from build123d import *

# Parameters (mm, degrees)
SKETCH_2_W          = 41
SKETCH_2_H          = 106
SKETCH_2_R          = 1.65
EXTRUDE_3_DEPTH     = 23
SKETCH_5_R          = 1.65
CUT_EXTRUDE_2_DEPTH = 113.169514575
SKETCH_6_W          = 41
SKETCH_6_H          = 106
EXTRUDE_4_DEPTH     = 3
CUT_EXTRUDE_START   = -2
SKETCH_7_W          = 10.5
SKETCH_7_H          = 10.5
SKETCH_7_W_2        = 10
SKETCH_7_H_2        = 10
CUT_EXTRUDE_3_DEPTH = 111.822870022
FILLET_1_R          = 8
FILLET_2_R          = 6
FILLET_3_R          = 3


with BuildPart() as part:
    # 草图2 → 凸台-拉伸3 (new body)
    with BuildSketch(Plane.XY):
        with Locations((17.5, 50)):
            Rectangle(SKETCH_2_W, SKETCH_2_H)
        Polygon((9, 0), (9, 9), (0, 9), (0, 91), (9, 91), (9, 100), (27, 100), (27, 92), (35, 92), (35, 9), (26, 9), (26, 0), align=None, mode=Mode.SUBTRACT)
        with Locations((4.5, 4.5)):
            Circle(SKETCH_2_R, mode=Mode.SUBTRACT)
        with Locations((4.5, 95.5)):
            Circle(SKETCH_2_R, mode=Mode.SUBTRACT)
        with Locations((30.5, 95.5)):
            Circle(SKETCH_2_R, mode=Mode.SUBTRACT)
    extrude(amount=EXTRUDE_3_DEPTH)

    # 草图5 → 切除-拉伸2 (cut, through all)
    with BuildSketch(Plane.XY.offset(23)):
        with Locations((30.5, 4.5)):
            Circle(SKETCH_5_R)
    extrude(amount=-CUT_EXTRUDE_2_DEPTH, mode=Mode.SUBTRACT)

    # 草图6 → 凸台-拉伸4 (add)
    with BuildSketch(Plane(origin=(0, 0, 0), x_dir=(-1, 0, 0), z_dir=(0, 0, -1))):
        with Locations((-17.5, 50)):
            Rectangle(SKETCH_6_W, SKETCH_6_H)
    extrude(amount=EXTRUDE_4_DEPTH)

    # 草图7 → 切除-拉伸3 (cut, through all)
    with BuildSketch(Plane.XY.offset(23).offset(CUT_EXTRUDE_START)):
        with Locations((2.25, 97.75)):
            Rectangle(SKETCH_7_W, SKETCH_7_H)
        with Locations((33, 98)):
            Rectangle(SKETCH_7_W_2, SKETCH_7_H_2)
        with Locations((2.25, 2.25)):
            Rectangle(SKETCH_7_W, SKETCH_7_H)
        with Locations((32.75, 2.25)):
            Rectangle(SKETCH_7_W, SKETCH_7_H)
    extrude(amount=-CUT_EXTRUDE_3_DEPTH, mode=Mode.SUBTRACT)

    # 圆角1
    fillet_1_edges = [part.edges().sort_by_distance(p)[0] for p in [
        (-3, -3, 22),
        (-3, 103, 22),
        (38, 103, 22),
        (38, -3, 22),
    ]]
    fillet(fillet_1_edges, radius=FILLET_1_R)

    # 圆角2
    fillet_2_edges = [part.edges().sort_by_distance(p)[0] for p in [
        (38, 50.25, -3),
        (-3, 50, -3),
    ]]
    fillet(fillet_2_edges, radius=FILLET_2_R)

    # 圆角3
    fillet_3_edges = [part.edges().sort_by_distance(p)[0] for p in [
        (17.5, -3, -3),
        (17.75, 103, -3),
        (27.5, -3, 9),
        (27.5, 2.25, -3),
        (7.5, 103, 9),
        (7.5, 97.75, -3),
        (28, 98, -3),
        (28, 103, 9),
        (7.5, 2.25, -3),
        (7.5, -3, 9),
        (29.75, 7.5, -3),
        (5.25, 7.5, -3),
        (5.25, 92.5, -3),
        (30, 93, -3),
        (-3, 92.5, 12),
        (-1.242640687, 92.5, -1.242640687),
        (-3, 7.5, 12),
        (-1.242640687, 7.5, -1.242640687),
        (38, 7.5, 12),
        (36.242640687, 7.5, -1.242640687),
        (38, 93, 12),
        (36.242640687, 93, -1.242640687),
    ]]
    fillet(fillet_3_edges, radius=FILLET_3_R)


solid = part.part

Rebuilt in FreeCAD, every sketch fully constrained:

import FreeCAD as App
import Part
import Sketcher


def edges_at(feature, points):
    """Names of the edges that pass closest to the given points."""
    edges = feature.Shape.Edges
    near = lambda p: min(range(len(edges)), key=lambda i: edges[i].distToShape(Part.Vertex(*p))[0])
    return sorted({f"Edge{near(p) + 1}" for p in points})

doc = App.newDocument("Part")
body = doc.addObject("PartDesign::Body", "Body")

# Sketch on XY plane
sketch1 = body.newObject("Sketcher::SketchObject", "Sketch")
sketch1.AttachmentSupport = (doc.getObject("XY_Plane"), [""])
sketch1.MapMode = "FlatFace"
sketch1.addGeometry(Part.LineSegment(App.Vector(-3, 103, 0), App.Vector(-3, -3, 0)), False)
sketch1.addGeometry(Part.LineSegment(App.Vector(-3, -3, 0), App.Vector(38, -3, 0)), False)
sketch1.addGeometry(Part.LineSegment(App.Vector(38, -3, 0), App.Vector(38, 103, 0)), False)
sketch1.addGeometry(Part.LineSegment(App.Vector(38, 103, 0), App.Vector(-3, 103, 0)), False)
sketch1.addGeometry(Part.Circle(App.Vector(4.5, 4.5, 0), App.Vector(0, 0, 1), 1.6), False)
sketch1.addGeometry(Part.Circle(App.Vector(4.5, 95.5, 0), App.Vector(0, 0, 1), 1.6), False)
sketch1.addGeometry(Part.LineSegment(App.Vector(26, 0, 0), App.Vector(9, 0, 0)), False)
sketch1.addGeometry(Part.LineSegment(App.Vector(9, 0, 0), App.Vector(9, 9, 0)), False)
sketch1.addGeometry(Part.LineSegment(App.Vector(9, 9, 0), App.Vector(0, 9, 0)), False)
sketch1.addGeometry(Part.LineSegment(App.Vector(0, 9, 0), App.Vector(0, 91, 0)), False)
sketch1.addGeometry(Part.LineSegment(App.Vector(0, 91, 0), App.Vector(9, 91, 0)), False)
sketch1.addGeometry(Part.LineSegment(App.Vector(9, 91, 0), App.Vector(9, 100, 0)), False)
sketch1.addGeometry(Part.LineSegment(App.Vector(9, 100, 0), App.Vector(27, 100, 0)), False)
sketch1.addGeometry(Part.LineSegment(App.Vector(27, 100, 0), App.Vector(27, 92, 0)), False)
sketch1.addGeometry(Part.LineSegment(App.Vector(27, 92, 0), App.Vector(35, 92, 0)), False)
sketch1.addGeometry(Part.LineSegment(App.Vector(35, 92, 0), App.Vector(35, 9, 0)), False)
sketch1.addGeometry(Part.LineSegment(App.Vector(35, 9, 0), App.Vector(26, 9, 0)), False)
sketch1.addGeometry(Part.LineSegment(App.Vector(26, 9, 0), App.Vector(26, 0, 0)), False)
sketch1.addGeometry(Part.Circle(App.Vector(30.5, 95.5, 0), App.Vector(0, 0, 1), 1.6), False)
sketch1.addConstraint(Sketcher.Constraint("Coincident", 0, 2, 1, 1))
sketch1.addConstraint(Sketcher.Constraint("Coincident", 1, 2, 2, 1))
sketch1.addConstraint(Sketcher.Constraint("Coincident", 2, 2, 3, 1))
sketch1.addConstraint(Sketcher.Constraint("Coincident", 3, 2, 0, 1))
sketch1.addConstraint(Sketcher.Constraint("Coincident", 6, 2, 7, 1))
sketch1.addConstraint(Sketcher.Constraint("Coincident", 7, 2, 8, 1))
sketch1.addConstraint(Sketcher.Constraint("Coincident", 8, 2, 9, 1))
sketch1.addConstraint(Sketcher.Constraint("Coincident", 9, 2, 10, 1))
sketch1.addConstraint(Sketcher.Constraint("Coincident", 10, 2, 11, 1))
sketch1.addConstraint(Sketcher.Constraint("Coincident", 11, 2, 12, 1))
sketch1.addConstraint(Sketcher.Constraint("Coincident", 12, 2, 13, 1))
sketch1.addConstraint(Sketcher.Constraint("Coincident", 13, 2, 14, 1))
sketch1.addConstraint(Sketcher.Constraint("Coincident", 14, 2, 15, 1))
sketch1.addConstraint(Sketcher.Constraint("Coincident", 15, 2, 16, 1))
sketch1.addConstraint(Sketcher.Constraint("Coincident", 16, 2, 17, 1))
sketch1.addConstraint(Sketcher.Constraint("Coincident", 17, 2, 6, 1))
sketch1.addConstraint(Sketcher.Constraint("Vertical", 0))
sketch1.addConstraint(Sketcher.Constraint("Horizontal", 1))
sketch1.addConstraint(Sketcher.Constraint("Vertical", 2))
sketch1.addConstraint(Sketcher.Constraint("Horizontal", 3))
sketch1.addConstraint(Sketcher.Constraint("Horizontal", 6))
sketch1.addConstraint(Sketcher.Constraint("Vertical", 7))
sketch1.addConstraint(Sketcher.Constraint("Horizontal", 8))
sketch1.addConstraint(Sketcher.Constraint("Vertical", 9))
sketch1.addConstraint(Sketcher.Constraint("Horizontal", 10))
sketch1.addConstraint(Sketcher.Constraint("Vertical", 11))
sketch1.addConstraint(Sketcher.Constraint("Horizontal", 12))
sketch1.addConstraint(Sketcher.Constraint("Vertical", 13))
sketch1.addConstraint(Sketcher.Constraint("Horizontal", 14))
sketch1.addConstraint(Sketcher.Constraint("Vertical", 15))
sketch1.addConstraint(Sketcher.Constraint("Horizontal", 16))
sketch1.addConstraint(Sketcher.Constraint("Vertical", 17))
sketch1.addConstraint(Sketcher.Constraint("Equal", 4, 5))
sketch1.addConstraint(Sketcher.Constraint("Equal", 5, 18))
sketch1.addConstraint(Sketcher.Constraint("PointOnObject", 6, 2, -1))
sketch1.addConstraint(Sketcher.Constraint("PointOnObject", 8, 2, -2))
sketch1.addConstraint(Sketcher.Constraint("Horizontal", 5, 3, 18, 3))
sketch1.addConstraint(Sketcher.Constraint("Horizontal", 8, 2, 15, 2))
sketch1.addConstraint(Sketcher.Constraint("Vertical", 4, 3, 5, 3))
sketch1.addConstraint(Sketcher.Constraint("Vertical", 7, 2, 10, 2))
sketch1.addConstraint(Sketcher.Constraint("Equal", 10, 16))
sketch1.addConstraint(Sketcher.Constraint("Equal", 16, 7))
sketch1.addConstraint(Sketcher.Constraint("Equal", 7, 11))
sketch1.addConstraint(Sketcher.Constraint("Equal", 14, 13))
sketch1.addConstraint(Sketcher.Constraint("Diameter", 4, 3.3))
sketch1.addConstraint(Sketcher.Constraint("DistanceX", 1, 1, 1, 2, 41.0))
sketch1.addConstraint(Sketcher.Constraint("DistanceX", 6, 2, 6, 1, 17.0))
sketch1.addConstraint(Sketcher.Constraint("DistanceX", 8, 2, 8, 1, 9.0))
sketch1.addConstraint(Sketcher.Constraint("DistanceX", 12, 1, 12, 2, 18.0))
sketch1.addConstraint(Sketcher.Constraint("DistanceY", 0, 2, 0, 1, 106.0))
sketch1.addConstraint(Sketcher.Constraint("DistanceY", 9, 1, 9, 2, 82.0))
sketch1.addConstraint(Sketcher.Constraint("DistanceX", 0, 2, -1, 1, 3.0))
sketch1.addConstraint(Sketcher.Constraint("DistanceY", 0, 2, -1, 1, 3.0))
sketch1.addConstraint(Sketcher.Constraint("DistanceY", 4, 3, 5, 3, 91.0))
sketch1.addConstraint(Sketcher.Constraint("DistanceX", 5, 3, 18, 3, 26.0))
sketch1.addConstraint(Sketcher.Constraint("DistanceX", -1, 1, 4, 3, 4.5))
sketch1.addConstraint(Sketcher.Constraint("DistanceY", -1, 1, 4, 3, 4.5))
pad1 = body.newObject("PartDesign::Pad", "Pad")
pad1.Profile = sketch1
pad1.Length = 23

# Sketch on XY plane
sketch2 = body.newObject("Sketcher::SketchObject", "Sketch001")
sketch2.AttachmentSupport = (doc.getObject("XY_Plane"), [""])
sketch2.MapMode = "FlatFace"
sketch2.AttachmentOffset = App.Placement(App.Vector(0, 0, 23), App.Rotation())
sketch2.addGeometry(Part.Circle(App.Vector(30.5, 4.5, 0), App.Vector(0, 0, 1), 1.6), False)
sketch2.addConstraint(Sketcher.Constraint("Diameter", 0, 3.3))
sketch2.addConstraint(Sketcher.Constraint("DistanceX", -1, 1, 0, 3, 30.5))
sketch2.addConstraint(Sketcher.Constraint("DistanceY", -1, 1, 0, 3, 4.5))
pocket1 = body.newObject("PartDesign::Pocket", "Pocket")
pocket1.Profile = sketch2
pocket1.Type = "ThroughAll"

# Sketch on XY plane
sketch3 = body.newObject("Sketcher::SketchObject", "Sketch002")
sketch3.AttachmentSupport = (doc.getObject("XY_Plane"), [""])
sketch3.MapMode = "FlatFace"
sketch3.addGeometry(Part.LineSegment(App.Vector(38, 103, 0), App.Vector(38, -3, 0)), False)
sketch3.addGeometry(Part.LineSegment(App.Vector(38, -3, 0), App.Vector(-3, -3, 0)), False)
sketch3.addGeometry(Part.LineSegment(App.Vector(-3, -3, 0), App.Vector(-3, 103, 0)), False)
sketch3.addGeometry(Part.LineSegment(App.Vector(-3, 103, 0), App.Vector(38, 103, 0)), False)
sketch3.addConstraint(Sketcher.Constraint("Coincident", 0, 2, 1, 1))
sketch3.addConstraint(Sketcher.Constraint("Coincident", 1, 2, 2, 1))
sketch3.addConstraint(Sketcher.Constraint("Coincident", 2, 2, 3, 1))
sketch3.addConstraint(Sketcher.Constraint("Coincident", 3, 2, 0, 1))
sketch3.addConstraint(Sketcher.Constraint("Vertical", 0))
sketch3.addConstraint(Sketcher.Constraint("Horizontal", 1))
sketch3.addConstraint(Sketcher.Constraint("Vertical", 2))
sketch3.addConstraint(Sketcher.Constraint("Horizontal", 3))
sketch3.addConstraint(Sketcher.Constraint("DistanceX", 1, 2, 1, 1, 41.0))
sketch3.addConstraint(Sketcher.Constraint("DistanceY", 0, 2, 0, 1, 106.0))
sketch3.addConstraint(Sketcher.Constraint("DistanceX", -1, 1, 0, 2, 38.0))
sketch3.addConstraint(Sketcher.Constraint("DistanceY", 0, 2, -1, 1, 3.0))
pad2 = body.newObject("PartDesign::Pad", "Pad001")
pad2.Profile = sketch3
pad2.Length = 3
pad2.Reversed = True

# Sketch on XY plane
sketch4 = body.newObject("Sketcher::SketchObject", "Sketch003")
sketch4.AttachmentSupport = (doc.getObject("XY_Plane"), [""])
sketch4.MapMode = "FlatFace"
sketch4.AttachmentOffset = App.Placement(App.Vector(0, 0, 21), App.Rotation())
sketch4.addGeometry(Part.LineSegment(App.Vector(-3, 103, 0), App.Vector(-3, 92, 0)), False)
sketch4.addGeometry(Part.LineSegment(App.Vector(-3, 92, 0), App.Vector(8, 92, 0)), False)
sketch4.addGeometry(Part.LineSegment(App.Vector(8, 92, 0), App.Vector(8, 103, 0)), False)
sketch4.addGeometry(Part.LineSegment(App.Vector(8, 103, 0), App.Vector(-3, 103, 0)), False)
sketch4.addGeometry(Part.LineSegment(App.Vector(28, 103, 0), App.Vector(28, 93, 0)), False)
sketch4.addGeometry(Part.LineSegment(App.Vector(28, 93, 0), App.Vector(38, 93, 0)), False)
sketch4.addGeometry(Part.LineSegment(App.Vector(38, 93, 0), App.Vector(38, 103, 0)), False)
sketch4.addGeometry(Part.LineSegment(App.Vector(38, 103, 0), App.Vector(28, 103, 0)), False)
sketch4.addGeometry(Part.LineSegment(App.Vector(-3, 8, 0), App.Vector(-3, -3, 0)), False)
sketch4.addGeometry(Part.LineSegment(App.Vector(-3, -3, 0), App.Vector(8, -3, 0)), False)
sketch4.addGeometry(Part.LineSegment(App.Vector(8, -3, 0), App.Vector(8, 8, 0)), False)
sketch4.addGeometry(Part.LineSegment(App.Vector(8, 8, 0), App.Vector(-3, 8, 0)), False)
sketch4.addGeometry(Part.LineSegment(App.Vector(28, 8, 0), App.Vector(28, -3, 0)), False)
sketch4.addGeometry(Part.LineSegment(App.Vector(28, -3, 0), App.Vector(38, -3, 0)), False)
sketch4.addGeometry(Part.LineSegment(App.Vector(38, -3, 0), App.Vector(38, 8, 0)), False)
sketch4.addGeometry(Part.LineSegment(App.Vector(38, 8, 0), App.Vector(28, 8, 0)), False)
sketch4.addConstraint(Sketcher.Constraint("Coincident", 0, 2, 1, 1))
sketch4.addConstraint(Sketcher.Constraint("Coincident", 1, 2, 2, 1))
sketch4.addConstraint(Sketcher.Constraint("Coincident", 2, 2, 3, 1))
sketch4.addConstraint(Sketcher.Constraint("Coincident", 3, 2, 0, 1))
sketch4.addConstraint(Sketcher.Constraint("Coincident", 4, 2, 5, 1))
sketch4.addConstraint(Sketcher.Constraint("Coincident", 5, 2, 6, 1))
sketch4.addConstraint(Sketcher.Constraint("Coincident", 6, 2, 7, 1))
sketch4.addConstraint(Sketcher.Constraint("Coincident", 7, 2, 4, 1))
sketch4.addConstraint(Sketcher.Constraint("Coincident", 8, 2, 9, 1))
sketch4.addConstraint(Sketcher.Constraint("Coincident", 9, 2, 10, 1))
sketch4.addConstraint(Sketcher.Constraint("Coincident", 10, 2, 11, 1))
sketch4.addConstraint(Sketcher.Constraint("Coincident", 11, 2, 8, 1))
sketch4.addConstraint(Sketcher.Constraint("Coincident", 12, 2, 13, 1))
sketch4.addConstraint(Sketcher.Constraint("Coincident", 13, 2, 14, 1))
sketch4.addConstraint(Sketcher.Constraint("Coincident", 14, 2, 15, 1))
sketch4.addConstraint(Sketcher.Constraint("Coincident", 15, 2, 12, 1))
sketch4.addConstraint(Sketcher.Constraint("Vertical", 0))
sketch4.addConstraint(Sketcher.Constraint("Horizontal", 1))
sketch4.addConstraint(Sketcher.Constraint("Vertical", 2))
sketch4.addConstraint(Sketcher.Constraint("Horizontal", 3))
sketch4.addConstraint(Sketcher.Constraint("Vertical", 4))
sketch4.addConstraint(Sketcher.Constraint("Horizontal", 5))
sketch4.addConstraint(Sketcher.Constraint("Vertical", 6))
sketch4.addConstraint(Sketcher.Constraint("Horizontal", 7))
sketch4.addConstraint(Sketcher.Constraint("Vertical", 8))
sketch4.addConstraint(Sketcher.Constraint("Horizontal", 9))
sketch4.addConstraint(Sketcher.Constraint("Vertical", 10))
sketch4.addConstraint(Sketcher.Constraint("Horizontal", 11))
sketch4.addConstraint(Sketcher.Constraint("Vertical", 12))
sketch4.addConstraint(Sketcher.Constraint("Horizontal", 13))
sketch4.addConstraint(Sketcher.Constraint("Vertical", 14))
sketch4.addConstraint(Sketcher.Constraint("Horizontal", 15))
sketch4.addConstraint(Sketcher.Constraint("Horizontal", 3, 2, 6, 2))
sketch4.addConstraint(Sketcher.Constraint("Horizontal", 9, 2, 12, 2))
sketch4.addConstraint(Sketcher.Constraint("Horizontal", 11, 2, 14, 2))
sketch4.addConstraint(Sketcher.Constraint("Vertical", 3, 2, 8, 2))
sketch4.addConstraint(Sketcher.Constraint("Vertical", 2, 2, 9, 2))
sketch4.addConstraint(Sketcher.Constraint("Vertical", 6, 2, 13, 2))
sketch4.addConstraint(Sketcher.Constraint("Equal", 11, 13))
sketch4.addConstraint(Sketcher.Constraint("Equal", 15, 0))
sketch4.addConstraint(Sketcher.Constraint("Equal", 7, 4))
sketch4.addConstraint(Sketcher.Constraint("Equal", 2, 8))
sketch4.addConstraint(Sketcher.Constraint("DistanceX", 5, 1, 5, 2, 10.0))
sketch4.addConstraint(Sketcher.Constraint("DistanceX", 1, 1, 1, 2, 10.5))
sketch4.addConstraint(Sketcher.Constraint("DistanceX", 0, 2, -1, 1, 3.0))
sketch4.addConstraint(Sketcher.Constraint("DistanceY", -1, 1, 2, 2, 103.0))
sketch4.addConstraint(Sketcher.Constraint("DistanceX", -1, 1, 4, 2, 28.0))
sketch4.addConstraint(Sketcher.Constraint("DistanceY", 8, 2, -1, 1, 3.0))
pocket2 = body.newObject("PartDesign::Pocket", "Pocket001")
pocket2.Profile = sketch4
pocket2.Type = "ThroughAll"
doc.recompute()

fillet = body.newObject("PartDesign::Fillet", "Fillet")
fillet.Base = (pocket2, edges_at(pocket2, [
    (-3, -3, 22),
    (-3, 103, 22),
    (38, 103, 22),
    (38, -3, 22),
]))
fillet.Radius = 8
doc.recompute()

fillet2 = body.newObject("PartDesign::Fillet", "Fillet001")
fillet2.Base = (fillet, edges_at(fillet, [(38, 50.25, -3), (-3, 50, -3)]))
fillet2.Radius = 6
doc.recompute()

fillet3 = body.newObject("PartDesign::Fillet", "Fillet002")
fillet3.Base = (fillet2, edges_at(fillet2, [
    (17.5, -3, -3),
    (17.75, 103, -3),
    (27.5, -3, 9),
    (27.5, 2.25, -3),
    (7.5, 103, 9),
    (7.5, 97.75, -3),
    (28, 98, -3),
    (28, 103, 9),
    (7.5, 2.25, -3),
    (7.5, -3, 9),
    (29.75, 7.5, -3),
    (5.25, 7.5, -3),
    (5.25, 92.5, -3),
    (30, 93, -3),
    (-3, 92.5, 12),
    (-1.243, 92.5, -1.243),
    (-3, 7.5, 12),
    (-1.243, 7.5, -1.243),
    (38, 7.5, 12),
    (36.243, 7.5, -1.243),
    (38, 93, 12),
    (36.243, 93, -1.243),
]))
fillet3.Radius = 3

doc.recompute()
